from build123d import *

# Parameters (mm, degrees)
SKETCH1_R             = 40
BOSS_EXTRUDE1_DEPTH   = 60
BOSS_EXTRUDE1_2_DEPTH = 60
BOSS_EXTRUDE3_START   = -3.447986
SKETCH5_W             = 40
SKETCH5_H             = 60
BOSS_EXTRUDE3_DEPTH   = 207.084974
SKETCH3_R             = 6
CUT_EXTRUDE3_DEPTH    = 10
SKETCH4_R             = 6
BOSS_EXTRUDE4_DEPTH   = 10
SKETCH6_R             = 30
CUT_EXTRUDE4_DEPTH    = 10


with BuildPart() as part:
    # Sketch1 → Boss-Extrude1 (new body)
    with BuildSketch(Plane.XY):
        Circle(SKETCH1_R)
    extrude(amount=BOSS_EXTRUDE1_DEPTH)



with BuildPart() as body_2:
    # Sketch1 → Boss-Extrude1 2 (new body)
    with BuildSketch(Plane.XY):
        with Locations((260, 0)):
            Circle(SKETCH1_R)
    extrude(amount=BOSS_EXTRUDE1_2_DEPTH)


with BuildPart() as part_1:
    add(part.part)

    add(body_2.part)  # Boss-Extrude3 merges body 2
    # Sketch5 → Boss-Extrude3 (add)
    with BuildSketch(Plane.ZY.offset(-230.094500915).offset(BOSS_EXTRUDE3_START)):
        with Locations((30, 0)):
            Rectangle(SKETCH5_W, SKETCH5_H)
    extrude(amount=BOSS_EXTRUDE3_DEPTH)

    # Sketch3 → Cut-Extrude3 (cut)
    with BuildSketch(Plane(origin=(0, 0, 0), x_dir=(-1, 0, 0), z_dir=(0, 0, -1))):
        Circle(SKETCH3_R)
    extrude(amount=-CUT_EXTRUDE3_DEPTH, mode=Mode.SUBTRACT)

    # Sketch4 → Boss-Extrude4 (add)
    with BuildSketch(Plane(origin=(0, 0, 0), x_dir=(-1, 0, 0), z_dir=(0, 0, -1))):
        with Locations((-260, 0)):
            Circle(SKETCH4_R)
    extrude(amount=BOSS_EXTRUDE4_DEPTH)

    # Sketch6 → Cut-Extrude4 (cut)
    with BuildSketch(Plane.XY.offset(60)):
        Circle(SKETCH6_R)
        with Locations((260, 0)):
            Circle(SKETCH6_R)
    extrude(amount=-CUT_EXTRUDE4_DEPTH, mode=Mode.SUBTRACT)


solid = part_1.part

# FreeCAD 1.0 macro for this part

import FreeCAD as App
import Part
import Sketcher
Q = App.Units.Quantity

doc = App.newDocument("Part")
body = doc.addObject("PartDesign::Body", "Body")

# Sketch on XY plane
sketch1 = doc.addObject("Sketcher::SketchObject", "Sketch")
body.addObject(sketch1)
sketch1.AttachmentSupport = (doc.XY_Plane, [""])
sketch1.MapMode = "FlatFace"
sketch1.addGeometry(Part.Circle(App.Vector(0, 0, 0), App.Vector(0, 0, 1), 40), False)
sketch1.addConstraint(Sketcher.Constraint("Coincident", 0, 3, -1, 1))
sketch1.addConstraint(Sketcher.Constraint("Diameter", 0, Q("80 mm")))
pad1 = doc.addObject("PartDesign::Pad", "Pad")
body.addObject(pad1)
pad1.Profile = sketch1
pad1.Length = 60
body2 = doc.addObject("PartDesign::Body", "Body001")

# Sketch on XY plane
sketch2 = doc.addObject("Sketcher::SketchObject", "Sketch001")
body2.addObject(sketch2)
sketch2.AttachmentSupport = (doc.getObject("XY_Plane001"), [""])
sketch2.MapMode = "FlatFace"
sketch2.addGeometry(Part.Circle(App.Vector(260, 0, 0), App.Vector(0, 0, 1), 40), False)
sketch2.addConstraint(Sketcher.Constraint("PointOnObject", 0, 3, -1))
sketch2.addConstraint(Sketcher.Constraint("Diameter", 0, Q("80 mm")))
sketch2.addConstraint(Sketcher.Constraint("DistanceX", -1, 1, 0, 3, Q("260 mm")))
pad2 = doc.addObject("PartDesign::Pad", "Pad001")
body2.addObject(pad2)
pad2.Profile = sketch2
pad2.Length = 60
body.AllowCompound = True
doc.recompute()

boolean = doc.addObject("PartDesign::Boolean", "Boolean")
body.addObject(boolean)
boolean.Type = "Fuse"
boolean.addObjects([body2])

# Sketch on YZ plane
sketch3 = doc.addObject("Sketcher::SketchObject", "Sketch002")
body.addObject(sketch3)
sketch3.AttachmentSupport = (doc.YZ_Plane, [""])
sketch3.MapMode = "FlatFace"
sketch3.AttachmentOffset = App.Placement(App.Vector(0, 0, 233.542487), App.Rotation())
sketch3.addGeometry(Part.LineSegment(App.Vector(30, 10, 0), App.Vector(-30, 10, 0)), False)
sketch3.addGeometry(Part.LineSegment(App.Vector(-30, 10, 0), App.Vector(-30, 50, 0)), False)
sketch3.addGeometry(Part.LineSegment(App.Vector(-30, 50, 0), App.Vector(30, 50, 0)), False)
sketch3.addGeometry(Part.LineSegment(App.Vector(30, 50, 0), App.Vector(30, 10, 0)), False)
sketch3.addConstraint(Sketcher.Constraint("Coincident", 0, 2, 1, 1))
sketch3.addConstraint(Sketcher.Constraint("Coincident", 1, 2, 2, 1))
sketch3.addConstraint(Sketcher.Constraint("Coincident", 2, 2, 3, 1))
sketch3.addConstraint(Sketcher.Constraint("Coincident", 3, 2, 0, 1))
sketch3.addConstraint(Sketcher.Constraint("Horizontal", 0))
sketch3.addConstraint(Sketcher.Constraint("Vertical", 1))
sketch3.addConstraint(Sketcher.Constraint("Horizontal", 2))
sketch3.addConstraint(Sketcher.Constraint("Vertical", 3))
sketch3.addConstraint(Sketcher.Constraint("DistanceX", 0, 2, 0, 1, Q("60 mm")))
sketch3.addConstraint(Sketcher.Constraint("DistanceY", 1, 1, 1, 2, Q("40 mm")))
sketch3.addConstraint(Sketcher.Constraint("DistanceX", 0, 2, -1, 1, Q("30 mm")))
sketch3.addConstraint(Sketcher.Constraint("DistanceY", -1, 1, 0, 2, Q("10 mm")))
pad3 = doc.addObject("PartDesign::Pad", "Pad002")
body.addObject(pad3)
pad3.Profile = sketch3
pad3.Length = 207.084974
pad3.Reversed = True

# Sketch on XY plane
sketch4 = doc.addObject("Sketcher::SketchObject", "Sketch003")
body.addObject(sketch4)
sketch4.AttachmentSupport = (doc.XY_Plane, [""])
sketch4.MapMode = "FlatFace"
sketch4.addGeometry(Part.Circle(App.Vector(0, 0, 0), App.Vector(0, 0, 1), 6), False)
sketch4.addConstraint(Sketcher.Constraint("Coincident", 0, 3, -1, 1))
sketch4.addConstraint(Sketcher.Constraint("Diameter", 0, Q("12 mm")))
pocket1 = doc.addObject("PartDesign::Pocket", "Pocket")
body.addObject(pocket1)
pocket1.Profile = sketch4
pocket1.Length = 10
pocket1.Reversed = True

# Sketch on XY plane
sketch5 = doc.addObject("Sketcher::SketchObject", "Sketch004")
body.addObject(sketch5)
sketch5.AttachmentSupport = (doc.XY_Plane, [""])
sketch5.MapMode = "FlatFace"
sketch5.addGeometry(Part.Circle(App.Vector(260, 0, 0), App.Vector(0, 0, 1), 6), False)
sketch5.addConstraint(Sketcher.Constraint("PointOnObject", 0, 3, -1))
sketch5.addConstraint(Sketcher.Constraint("Diameter", 0, Q("12 mm")))
sketch5.addConstraint(Sketcher.Constraint("DistanceX", -1, 1, 0, 3, Q("260 mm")))
pad4 = doc.addObject("PartDesign::Pad", "Pad003")
body.addObject(pad4)
pad4.Profile = sketch5
pad4.Length = 10
pad4.Reversed = True

# Sketch on XY plane
sketch6 = doc.addObject("Sketcher::SketchObject", "Sketch005")
body.addObject(sketch6)
sketch6.AttachmentSupport = (doc.XY_Plane, [""])
sketch6.MapMode = "FlatFace"
sketch6.AttachmentOffset = App.Placement(App.Vector(0, 0, 60), App.Rotation())
sketch6.addGeometry(Part.Circle(App.Vector(0, 0, 0), App.Vector(0, 0, 1), 30), False)
sketch6.addGeometry(Part.Circle(App.Vector(260, 0, 0), App.Vector(0, 0, 1), 30), False)
sketch6.addConstraint(Sketcher.Constraint("Coincident", 0, 3, -1, 1))
sketch6.addConstraint(Sketcher.Constraint("Equal", 0, 1))
sketch6.addConstraint(Sketcher.Constraint("PointOnObject", 1, 3, -1))
sketch6.addConstraint(Sketcher.Constraint("Diameter", 0, Q("60 mm")))
sketch6.addConstraint(Sketcher.Constraint("DistanceX", -1, 1, 1, 3, Q("260 mm")))
pocket2 = doc.addObject("PartDesign::Pocket", "Pocket001")
body.addObject(pocket2)
pocket2.Profile = sketch6
pocket2.Length = 10

doc.recompute()
